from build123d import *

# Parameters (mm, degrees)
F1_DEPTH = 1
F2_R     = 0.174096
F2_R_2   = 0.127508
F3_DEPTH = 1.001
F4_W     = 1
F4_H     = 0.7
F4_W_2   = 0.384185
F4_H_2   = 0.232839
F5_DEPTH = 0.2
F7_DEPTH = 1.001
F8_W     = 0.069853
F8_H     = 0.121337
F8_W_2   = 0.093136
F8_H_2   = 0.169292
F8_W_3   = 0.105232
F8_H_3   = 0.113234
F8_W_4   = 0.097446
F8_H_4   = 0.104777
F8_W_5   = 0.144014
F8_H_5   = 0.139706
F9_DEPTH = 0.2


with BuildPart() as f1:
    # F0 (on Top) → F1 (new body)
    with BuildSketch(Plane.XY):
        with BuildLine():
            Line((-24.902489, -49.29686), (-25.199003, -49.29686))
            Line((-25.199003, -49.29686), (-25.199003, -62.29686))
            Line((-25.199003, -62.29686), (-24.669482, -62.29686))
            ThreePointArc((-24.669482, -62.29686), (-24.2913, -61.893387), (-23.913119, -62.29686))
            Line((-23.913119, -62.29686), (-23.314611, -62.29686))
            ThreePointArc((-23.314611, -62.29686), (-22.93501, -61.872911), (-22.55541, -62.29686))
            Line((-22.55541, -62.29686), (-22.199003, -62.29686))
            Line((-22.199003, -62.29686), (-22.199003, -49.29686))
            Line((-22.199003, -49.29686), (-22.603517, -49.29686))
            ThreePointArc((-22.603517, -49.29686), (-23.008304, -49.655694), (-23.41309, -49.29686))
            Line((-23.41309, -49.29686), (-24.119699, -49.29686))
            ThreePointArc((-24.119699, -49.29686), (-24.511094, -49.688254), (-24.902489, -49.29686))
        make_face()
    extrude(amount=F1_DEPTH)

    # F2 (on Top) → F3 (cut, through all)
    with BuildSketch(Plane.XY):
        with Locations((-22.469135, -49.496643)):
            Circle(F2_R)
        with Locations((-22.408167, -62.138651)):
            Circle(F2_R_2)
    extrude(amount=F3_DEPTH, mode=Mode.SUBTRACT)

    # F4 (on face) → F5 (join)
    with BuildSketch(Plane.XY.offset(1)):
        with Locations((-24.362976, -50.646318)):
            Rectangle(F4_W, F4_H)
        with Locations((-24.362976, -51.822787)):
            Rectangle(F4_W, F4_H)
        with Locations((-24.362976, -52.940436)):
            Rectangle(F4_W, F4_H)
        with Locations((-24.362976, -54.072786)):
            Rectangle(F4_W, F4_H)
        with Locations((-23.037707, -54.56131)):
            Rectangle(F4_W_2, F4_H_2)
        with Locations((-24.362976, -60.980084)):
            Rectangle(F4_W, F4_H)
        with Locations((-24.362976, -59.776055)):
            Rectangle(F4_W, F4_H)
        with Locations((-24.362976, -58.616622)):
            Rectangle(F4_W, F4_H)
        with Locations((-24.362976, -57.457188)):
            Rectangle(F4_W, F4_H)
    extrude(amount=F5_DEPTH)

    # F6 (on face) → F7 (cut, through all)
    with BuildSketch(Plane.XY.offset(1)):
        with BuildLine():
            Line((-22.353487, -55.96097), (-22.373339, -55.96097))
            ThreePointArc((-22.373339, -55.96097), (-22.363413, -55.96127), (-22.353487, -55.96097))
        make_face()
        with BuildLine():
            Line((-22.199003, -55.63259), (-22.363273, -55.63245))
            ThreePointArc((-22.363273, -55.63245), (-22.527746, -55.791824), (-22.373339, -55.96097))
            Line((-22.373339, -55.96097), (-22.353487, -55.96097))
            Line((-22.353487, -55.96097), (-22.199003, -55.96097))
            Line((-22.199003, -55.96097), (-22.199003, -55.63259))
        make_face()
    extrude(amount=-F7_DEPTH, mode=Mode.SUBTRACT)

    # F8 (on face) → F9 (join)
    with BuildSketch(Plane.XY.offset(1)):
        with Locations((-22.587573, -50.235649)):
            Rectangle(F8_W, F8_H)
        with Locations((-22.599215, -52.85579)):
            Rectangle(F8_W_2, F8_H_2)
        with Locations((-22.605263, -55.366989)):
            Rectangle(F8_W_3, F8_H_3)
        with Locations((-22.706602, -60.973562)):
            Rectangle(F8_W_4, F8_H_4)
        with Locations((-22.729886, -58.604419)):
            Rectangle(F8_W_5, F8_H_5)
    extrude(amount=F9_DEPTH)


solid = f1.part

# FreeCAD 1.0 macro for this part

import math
import FreeCAD as App
import Part
import Sketcher
from FreeCAD import Vector

doc = App.newDocument("Part")
params = doc.addObject("Spreadsheet::Sheet", "Params")
for row, (alias, value) in enumerate([
    ("sketch1_height", "13 mm"),
    ("pad1_length", "1 mm"),
    ("sketch3_width", "1 mm"),
    ("sketch3_height", "0.7 mm"),
    ("pad2_length", "0.2 mm"),
    ("pad3_length", "0.2 mm"),
], start=1):
    params.set(f"A{row}", alias)
    params.set(f"B{row}", "=" + value)
    params.setAlias(f"B{row}", alias)

body = doc.addObject("PartDesign::Body", "Body")

sketch1 = body.newObject("Sketcher::SketchObject", "Sketch")
sketch1.AttachmentSupport = (doc.getObject("XY_Plane"), [""])
sketch1.MapMode = "FlatFace"
sketch1.addGeometry([
    Part.LineSegment(Vector(-24.902489, -49.29686, 0), Vector(-25.199003, -49.29686, 0)),
    Part.LineSegment(Vector(-25.199003, -49.29686, 0), Vector(-25.199003, -62.29686, 0)),
    Part.LineSegment(Vector(-25.199003, -62.29686, 0), Vector(-24.669482, -62.29686, 0)),
    Part.ArcOfCircle(Part.Circle(Vector(-24.2913, -62.272361, 0), Vector(0, 0, 1), 0.378974), math.radians(-3.706474), math.radians(183.706474)),
    Part.LineSegment(Vector(-23.913119, -62.29686, 0), Vector(-23.314611, -62.29686, 0)),
    Part.ArcOfCircle(Part.Circle(Vector(-22.935011, -62.254831, 0), Vector(0, 0, 1), 0.38192), math.radians(-6.317984), math.radians(186.317984)),
    Part.LineSegment(Vector(-22.55541, -62.29686, 0), Vector(-22.199003, -62.29686, 0)),
    Part.LineSegment(Vector(-22.199003, -62.29686, 0), Vector(-22.199003, -49.29686, 0)),
    Part.LineSegment(Vector(-22.199003, -49.29686, 0), Vector(-22.603517, -49.29686, 0)),
    Part.ArcOfCircle(Part.Circle(Vector(-23.008304, -49.247965, 0), Vector(0, 0, 1), 0.407729), math.radians(-173.112513), math.radians(-6.887487)),
    Part.LineSegment(Vector(-23.41309, -49.29686, 0), Vector(-24.119699, -49.29686, 0)),
    Part.ArcOfCircle(Part.Circle(Vector(-24.511094, -49.296859, 0), Vector(0, 0, 1), 0.391395), math.radians(-179.999854), math.radians(-0.000146)),
], False)
sketch1.addConstraint([
    Sketcher.Constraint("Coincident", 0, 2, 1, 1),
    Sketcher.Constraint("Coincident", 1, 2, 2, 1),
    Sketcher.Constraint("Coincident", 2, 2, 3, 2),
    Sketcher.Constraint("Coincident", 3, 1, 4, 1),
    Sketcher.Constraint("Coincident", 4, 2, 5, 2),
    Sketcher.Constraint("Coincident", 5, 1, 6, 1),
    Sketcher.Constraint("Coincident", 6, 2, 7, 1),
    Sketcher.Constraint("Coincident", 7, 2, 8, 1),
    Sketcher.Constraint("Coincident", 8, 2, 9, 2),
    Sketcher.Constraint("Coincident", 9, 1, 10, 1),
    Sketcher.Constraint("Coincident", 10, 2, 11, 2),
    Sketcher.Constraint("Coincident", 11, 1, 0, 1),
    Sketcher.Constraint("Horizontal", 0),
    Sketcher.Constraint("Vertical", 1),
    Sketcher.Constraint("Horizontal", 2),
    Sketcher.Constraint("Horizontal", 4),
    Sketcher.Constraint("Horizontal", 6),
    Sketcher.Constraint("Vertical", 7),
    Sketcher.Constraint("Horizontal", 8),
    Sketcher.Constraint("Horizontal", 10),
    Sketcher.Constraint("Horizontal", 11, 3, 0, 2),
    Sketcher.Constraint("Horizontal", 2, 2, 3, 1),
    Sketcher.Constraint("Horizontal", 4, 2, 5, 1),
    Sketcher.Constraint("Horizontal", 0, 2, 7, 2),
    Sketcher.Constraint("Horizontal", 8, 2, 9, 1),
    Sketcher.Constraint("DistanceY", 1, 2, 1, 1, 13.0),
    Sketcher.Constraint("DistanceX", 0, 2, 7, 2, 3.0),
    Sketcher.Constraint("Radius", 5, 0.38192),
    Sketcher.Constraint("Radius", 9, 0.407729),
    Sketcher.Constraint("Radius", 3, 0.378974),
    Sketcher.Constraint("Radius", 11, 0.391395),
    Sketcher.Constraint("DistanceX", 2, 1, 2, 2, 0.529521),
    Sketcher.Constraint("DistanceX", 10, 2, 10, 1, 0.706609),
    Sketcher.Constraint("DistanceX", 3, 3, -1, 1, 24.2913),
    Sketcher.Constraint("DistanceX", 10, 2, -1, 1, 24.119699),
    Sketcher.Constraint("DistanceX", 0, 2, 9, 3, 2.1907),
    Sketcher.Constraint("DistanceY", 3, 3, 0, 2, 12.975501),
    Sketcher.Constraint("DistanceX", 4, 2, 5, 3, 0.3796),
    Sketcher.Constraint("DistanceX", 4, 1, 4, 2, 0.598508),
    Sketcher.Constraint("DistanceY", 3, 3, -1, 1, 62.272361),
])
sketch1.setExpression("Constraints[25]", "Params.sketch1_height")
pad1 = body.newObject("PartDesign::Pad", "Pad")
pad1.Profile = sketch1
pad1.setExpression("Length", "Params.pad1_length")

sketch2 = body.newObject("Sketcher::SketchObject", "Sketch001")
sketch2.AttachmentSupport = (doc.getObject("XY_Plane"), [""])
sketch2.MapMode = "FlatFace"
sketch2.addGeometry([
    Part.Circle(Vector(-22.469135, -49.496643, 0), Vector(0, 0, 1), 0.174096),
    Part.Circle(Vector(-22.408167, -62.138651, 0), Vector(0, 0, 1), 0.127508),
], False)
sketch2.addConstraint([
    Sketcher.Constraint("Diameter", 0, 0.348192),
    Sketcher.Constraint("Diameter", 1, 0.255016),
    Sketcher.Constraint("DistanceY", 1, 3, -1, 1, 62.138651),
    Sketcher.Constraint("DistanceX", 0, 3, 1, 3, 0.060968),
    Sketcher.Constraint("DistanceY", 1, 3, 0, 3, 12.642008),
    Sketcher.Constraint("DistanceX", 0, 3, -1, 1, 22.469135),
])
pocket1 = body.newObject("PartDesign::Pocket", "Pocket")
pocket1.Profile = sketch2
pocket1.Type = "ThroughAll"
pocket1.Reversed = True

sketch3 = body.newObject("Sketcher::SketchObject", "Sketch002")
sketch3.AttachmentSupport = (doc.getObject("XY_Plane"), [""])
sketch3.MapMode = "FlatFace"
sketch3.AttachmentOffset = App.Placement(Vector(0, 0, 1), App.Rotation())
sketch3.addGeometry([
    Part.LineSegment(Vector(-24.862976, -50.296318, 0), Vector(-24.862976, -50.996318, 0)),
    Part.LineSegment(Vector(-24.862976, -50.996318, 0), Vector(-23.862976, -50.996318, 0)),
    Part.LineSegment(Vector(-23.862976, -50.996318, 0), Vector(-23.862976, -50.296318, 0)),
    Part.LineSegment(Vector(-23.862976, -50.296318, 0), Vector(-24.862976, -50.296318, 0)),
    Part.LineSegment(Vector(-24.862976, -51.472787, 0), Vector(-24.862976, -52.172787, 0)),
    Part.LineSegment(Vector(-24.862976, -52.172787, 0), Vector(-23.862976, -52.172787, 0)),
    Part.LineSegment(Vector(-23.862976, -52.172787, 0), Vector(-23.862976, -51.472787, 0)),
    Part.LineSegment(Vector(-23.862976, -51.472787, 0), Vector(-24.862976, -51.472787, 0)),
    Part.LineSegment(Vector(-24.862976, -52.590436, 0), Vector(-24.862976, -53.290436, 0)),
    Part.LineSegment(Vector(-24.862976, -53.290436, 0), Vector(-23.862976, -53.290436, 0)),
    Part.LineSegment(Vector(-23.862976, -53.290436, 0), Vector(-23.862976, -52.590436, 0)),
    Part.LineSegment(Vector(-23.862976, -52.590436, 0), Vector(-24.862976, -52.590436, 0)),
    Part.LineSegment(Vector(-24.862976, -53.722786, 0), Vector(-24.862976, -54.422786, 0)),
    Part.LineSegment(Vector(-24.862976, -54.422786, 0), Vector(-23.862976, -54.422786, 0)),
    Part.LineSegment(Vector(-23.862976, -54.422786, 0), Vector(-23.862976, -53.722786, 0)),
    Part.LineSegment(Vector(-23.862976, -53.722786, 0), Vector(-24.862976, -53.722786, 0)),
    Part.LineSegment(Vector(-23.229799, -54.44489, 0), Vector(-23.229799, -54.677729, 0)),
    Part.LineSegment(Vector(-23.229799, -54.677729, 0), Vector(-22.845614, -54.677729, 0)),
    Part.LineSegment(Vector(-22.845614, -54.677729, 0), Vector(-22.845614, -54.44489, 0)),
    Part.LineSegment(Vector(-22.845614, -54.44489, 0), Vector(-23.229799, -54.44489, 0)),
    Part.LineSegment(Vector(-24.862976, -60.630084, 0), Vector(-24.862976, -61.330084, 0)),
    Part.LineSegment(Vector(-24.862976, -61.330084, 0), Vector(-23.862976, -61.330084, 0)),
    Part.LineSegment(Vector(-23.862976, -61.330084, 0), Vector(-23.862976, -60.630084, 0)),
    Part.LineSegment(Vector(-23.862976, -60.630084, 0), Vector(-24.862976, -60.630084, 0)),
    Part.LineSegment(Vector(-24.862976, -59.426055, 0), Vector(-24.862976, -60.126055, 0)),
    Part.LineSegment(Vector(-24.862976, -60.126055, 0), Vector(-23.862976, -60.126055, 0)),
    Part.LineSegment(Vector(-23.862976, -60.126055, 0), Vector(-23.862976, -59.426055, 0)),
    Part.LineSegment(Vector(-23.862976, -59.426055, 0), Vector(-24.862976, -59.426055, 0)),
    Part.LineSegment(Vector(-24.862976, -58.266622, 0), Vector(-24.862976, -58.966622, 0)),
    Part.LineSegment(Vector(-24.862976, -58.966622, 0), Vector(-23.862976, -58.966622, 0)),
    Part.LineSegment(Vector(-23.862976, -58.966622, 0), Vector(-23.862976, -58.266622, 0)),
    Part.LineSegment(Vector(-23.862976, -58.266622, 0), Vector(-24.862976, -58.266622, 0)),
    Part.LineSegment(Vector(-24.862976, -57.107188, 0), Vector(-24.862976, -57.807188, 0)),
    Part.LineSegment(Vector(-24.862976, -57.807188, 0), Vector(-23.862976, -57.807188, 0)),
    Part.LineSegment(Vector(-23.862976, -57.807188, 0), Vector(-23.862976, -57.107188, 0)),
    Part.LineSegment(Vector(-23.862976, -57.107188, 0), Vector(-24.862976, -57.107188, 0)),
], False)
sketch3.addConstraint([
    Sketcher.Constraint("Coincident", 0, 2, 1, 1),
    Sketcher.Constraint("Coincident", 1, 2, 2, 1),
    Sketcher.Constraint("Coincident", 2, 2, 3, 1),
    Sketcher.Constraint("Coincident", 3, 2, 0, 1),
    Sketcher.Constraint("Coincident", 4, 2, 5, 1),
    Sketcher.Constraint("Coincident", 5, 2, 6, 1),
    Sketcher.Constraint("Coincident", 6, 2, 7, 1),
    Sketcher.Constraint("Coincident", 7, 2, 4, 1),
    Sketcher.Constraint("Coincident", 8, 2, 9, 1),
    Sketcher.Constraint("Coincident", 9, 2, 10, 1),
    Sketcher.Constraint("Coincident", 10, 2, 11, 1),
    Sketcher.Constraint("Coincident", 11, 2, 8, 1),
    Sketcher.Constraint("Coincident", 12, 2, 13, 1),
    Sketcher.Constraint("Coincident", 13, 2, 14, 1),
    Sketcher.Constraint("Coincident", 14, 2, 15, 1),
    Sketcher.Constraint("Coincident", 15, 2, 12, 1),
    Sketcher.Constraint("Coincident", 16, 2, 17, 1),
    Sketcher.Constraint("Coincident", 17, 2, 18, 1),
    Sketcher.Constraint("Coincident", 18, 2, 19, 1),
    Sketcher.Constraint("Coincident", 19, 2, 16, 1),
    Sketcher.Constraint("Coincident", 20, 2, 21, 1),
    Sketcher.Constraint("Coincident", 21, 2, 22, 1),
    Sketcher.Constraint("Coincident", 22, 2, 23, 1),
    Sketcher.Constraint("Coincident", 23, 2, 20, 1),
    Sketcher.Constraint("Coincident", 24, 2, 25, 1),
    Sketcher.Constraint("Coincident", 25, 2, 26, 1),
    Sketcher.Constraint("Coincident", 26, 2, 27, 1),
    Sketcher.Constraint("Coincident", 27, 2, 24, 1),
    Sketcher.Constraint("Coincident", 28, 2, 29, 1),
    Sketcher.Constraint("Coincident", 29, 2, 30, 1),
    Sketcher.Constraint("Coincident", 30, 2, 31, 1),
    Sketcher.Constraint("Coincident", 31, 2, 28, 1),
    Sketcher.Constraint("Coincident", 32, 2, 33, 1),
    Sketcher.Constraint("Coincident", 33, 2, 34, 1),
    Sketcher.Constraint("Coincident", 34, 2, 35, 1),
    Sketcher.Constraint("Coincident", 35, 2, 32, 1),
    Sketcher.Constraint("Vertical", 0),
    Sketcher.Constraint("Horizontal", 1),
    Sketcher.Constraint("Vertical", 2),
    Sketcher.Constraint("Horizontal", 3),
    Sketcher.Constraint("Vertical", 4),
    Sketcher.Constraint("Horizontal", 5),
    Sketcher.Constraint("Vertical", 6),
    Sketcher.Constraint("Horizontal", 7),
    Sketcher.Constraint("Vertical", 8),
    Sketcher.Constraint("Horizontal", 9),
    Sketcher.Constraint("Vertical", 10),
    Sketcher.Constraint("Horizontal", 11),
    Sketcher.Constraint("Vertical", 12),
    Sketcher.Constraint("Horizontal", 13),
    Sketcher.Constraint("Vertical", 14),
    Sketcher.Constraint("Horizontal", 15),
    Sketcher.Constraint("Vertical", 16),
    Sketcher.Constraint("Horizontal", 17),
    Sketcher.Constraint("Vertical", 18),
    Sketcher.Constraint("Horizontal", 19),
    Sketcher.Constraint("Vertical", 20),
    Sketcher.Constraint("Horizontal", 21),
    Sketcher.Constraint("Vertical", 22),
    Sketcher.Constraint("Horizontal", 23),
    Sketcher.Constraint("Vertical", 24),
    Sketcher.Constraint("Horizontal", 25),
    Sketcher.Constraint("Vertical", 26),
    Sketcher.Constraint("Horizontal", 27),
    Sketcher.Constraint("Vertical", 28),
    Sketcher.Constraint("Horizontal", 29),
    Sketcher.Constraint("Vertical", 30),
    Sketcher.Constraint("Horizontal", 31),
    Sketcher.Constraint("Vertical", 32),
    Sketcher.Constraint("Horizontal", 33),
    Sketcher.Constraint("Vertical", 34),
    Sketcher.Constraint("Horizontal", 35),
    Sketcher.Constraint("Vertical", 3, 2, 4, 2),
    Sketcher.Constraint("Vertical", 2, 2, 5, 2),
    Sketcher.Constraint("Vertical", 7, 2, 8, 2),
    Sketcher.Constraint("Vertical", 6, 2, 9, 2),
    Sketcher.Constraint("Vertical", 11, 2, 12, 2),
    Sketcher.Constraint("Vertical", 10, 2, 13, 2),
    Sketcher.Constraint("Vertical", 15, 2, 20, 2),
    Sketcher.Constraint("Vertical", 14, 2, 21, 2),
    Sketcher.Constraint("Vertical", 23, 2, 24, 2),
    Sketcher.Constraint("Vertical", 22, 2, 25, 2),
    Sketcher.Constraint("Vertical", 27, 2, 28, 2),
    Sketcher.Constraint("Vertical", 26, 2, 29, 2),
    Sketcher.Constraint("Vertical", 31, 2, 32, 2),
    Sketcher.Constraint("Vertical", 30, 2, 33, 2),
    Sketcher.Constraint("Equal", 2, 4),
    Sketcher.Constraint("Equal", 6, 8),
    Sketcher.Constraint("Equal", 10, 12),
    Sketcher.Constraint("Equal", 14, 20),
    Sketcher.Constraint("Equal", 22, 24),
    Sketcher.Constraint("Equal", 26, 28),
    Sketcher.Constraint("Equal", 30, 32),
    Sketcher.Constraint("DistanceX", 1, 1, 1, 2, 1.0),
    Sketcher.Constraint("DistanceY", 0, 2, 0, 1, 0.7),
    Sketcher.Constraint("DistanceY", 12, 2, 4, 2, 2.249999),
    Sketcher.Constraint("DistanceY", 16, 2, 16, 1, 0.232839),
    Sketcher.Constraint("DistanceX", 16, 2, -1, 1, 23.229799),
    Sketcher.Constraint("DistanceX", 17, 1, 17, 2, 0.384185),
    Sketcher.Constraint("DistanceY", 0, 2, -1, 1, 50.996318),
    Sketcher.Constraint("DistanceY", 16, 2, -1, 1, 54.677729),
    Sketcher.Constraint("DistanceY", 30, 2, -1, 1, 58.266622),
    Sketcher.Constraint("DistanceY", 4, 2, 0, 2, 1.176469),
    Sketcher.Constraint("DistanceY", 8, 2, 4, 2, 1.117649),
    Sketcher.Constraint("DistanceX", 13, 2, 17, 2, 1.017361),
    Sketcher.Constraint("DistanceY", 23, 2, 24, 2, 0.504029),
    Sketcher.Constraint("DistanceY", 23, 2, 28, 2, 1.663462),
    Sketcher.Constraint("DistanceY", 32, 2, -1, 1, 57.807188),
])
sketch3.setExpression("Constraints[93]", "Params.sketch3_width")
sketch3.setExpression("Constraints[94]", "Params.sketch3_height")
pad2 = body.newObject("PartDesign::Pad", "Pad001")
pad2.Profile = sketch3
pad2.setExpression("Length", "Params.pad2_length")

sketch4 = body.newObject("Sketcher::SketchObject", "Sketch003")
sketch4.AttachmentSupport = (doc.getObject("XY_Plane"), [""])
sketch4.MapMode = "FlatFace"
sketch4.AttachmentOffset = App.Placement(Vector(0, 0, 1), App.Rotation())
sketch4.addGeometry([
    Part.ArcOfCircle(Part.Circle(Vector(-22.363413, -55.796911, 0), Vector(0, 0, 1), 0.164359), math.radians(-93.462322), math.radians(-86.537678)),
    Part.LineSegment(Vector(-22.353487, -55.96097, 0), Vector(-22.199003, -55.96097, 0)),
    Part.LineSegment(Vector(-22.199003, -55.96097, 0), Vector(-22.199003, -55.63259, 0)),
    Part.LineSegment(Vector(-22.199003, -55.63259, 0), Vector(-22.363273, -55.63245, 0)),
    Part.ArcOfCircle(Part.Circle(Vector(-22.363413, -55.79686, 0), Vector(0, 0, 1), 0.16441), math.radians(89.951153), math.radians(266.538808)),
], False)
sketch4.addConstraint([
    Sketcher.Constraint("Coincident", 0, 2, 1, 1),
    Sketcher.Constraint("Coincident", 1, 2, 2, 1),
    Sketcher.Constraint("Coincident", 2, 2, 3, 1),
    Sketcher.Constraint("Tangent", 3, 2, 4, 1),
    Sketcher.Constraint("Coincident", 4, 2, 0, 1),
    Sketcher.Constraint("Horizontal", 1),
    Sketcher.Constraint("Vertical", 2),
    Sketcher.Constraint("Horizontal", 1, 2, 4, 2),
    Sketcher.Constraint("Vertical", 0, 3, 4, 3),
    Sketcher.Constraint("Radius", 0, 0.164359),
    Sketcher.Constraint("Radius", 4, 0.16441),
    Sketcher.Constraint("DistanceY", 2, 1, 2, 2, 0.32838),
    Sketcher.Constraint("Distance", 3, 0.16427),
    Sketcher.Constraint("DistanceX", 1, 1, 1, 2, 0.154484),
    Sketcher.Constraint("DistanceY", 0, 3, -1, 1, 55.796911),
    Sketcher.Constraint("DistanceX", 4, 2, -1, 1, 22.373339),
])
pocket2 = body.newObject("PartDesign::Pocket", "Pocket001")
pocket2.Profile = sketch4
pocket2.Type = "ThroughAll"

sketch5 = body.newObject("Sketcher::SketchObject", "Sketch004")
sketch5.AttachmentSupport = (doc.getObject("XY_Plane"), [""])
sketch5.MapMode = "FlatFace"
sketch5.AttachmentOffset = App.Placement(Vector(0, 0, 1), App.Rotation())
sketch5.addGeometry([
    Part.LineSegment(Vector(-22.622499, -50.17498, 0), Vector(-22.622499, -50.296318, 0)),
    Part.LineSegment(Vector(-22.622499, -50.296318, 0), Vector(-22.552647, -50.296318, 0)),
    Part.LineSegment(Vector(-22.552647, -50.296318, 0), Vector(-22.552647, -50.17498, 0)),
    Part.LineSegment(Vector(-22.552647, -50.17498, 0), Vector(-22.622499, -50.17498, 0)),
    Part.LineSegment(Vector(-22.645783, -52.771144, 0), Vector(-22.645783, -52.940436, 0)),
    Part.LineSegment(Vector(-22.645783, -52.940436, 0), Vector(-22.552647, -52.940436, 0)),
    Part.LineSegment(Vector(-22.552647, -52.940436, 0), Vector(-22.552647, -52.771144, 0)),
    Part.LineSegment(Vector(-22.552647, -52.771144, 0), Vector(-22.645783, -52.771144, 0)),
    Part.LineSegment(Vector(-22.657879, -55.310372, 0), Vector(-22.657879, -55.423606, 0)),
    Part.LineSegment(Vector(-22.657879, -55.423606, 0), Vector(-22.552647, -55.423606, 0)),
    Part.LineSegment(Vector(-22.552647, -55.423606, 0), Vector(-22.552647, -55.310372, 0)),
    Part.LineSegment(Vector(-22.552647, -55.310372, 0), Vector(-22.657879, -55.310372, 0)),
    Part.LineSegment(Vector(-22.755325, -60.921174, 0), Vector(-22.755325, -61.025951, 0)),
    Part.LineSegment(Vector(-22.755325, -61.025951, 0), Vector(-22.657879, -61.025951, 0)),
    Part.LineSegment(Vector(-22.657879, -61.025951, 0), Vector(-22.657879, -60.921174, 0)),
    Part.LineSegment(Vector(-22.657879, -60.921174, 0), Vector(-22.755325, -60.921174, 0)),
    Part.LineSegment(Vector(-22.801893, -58.534566, 0), Vector(-22.801893, -58.674272, 0)),
    Part.LineSegment(Vector(-22.801893, -58.674272, 0), Vector(-22.657879, -58.674272, 0)),
    Part.LineSegment(Vector(-22.657879, -58.674272, 0), Vector(-22.657879, -58.534566, 0)),
    Part.LineSegment(Vector(-22.657879, -58.534566, 0), Vector(-22.801893, -58.534566, 0)),
], False)
sketch5.addConstraint([
    Sketcher.Constraint("Coincident", 0, 2, 1, 1),
    Sketcher.Constraint("Coincident", 1, 2, 2, 1),
    Sketcher.Constraint("Coincident", 2, 2, 3, 1),
    Sketcher.Constraint("Coincident", 3, 2, 0, 1),
    Sketcher.Constraint("Coincident", 4, 2, 5, 1),
    Sketcher.Constraint("Coincident", 5, 2, 6, 1),
    Sketcher.Constraint("Coincident", 6, 2, 7, 1),
    Sketcher.Constraint("Coincident", 7, 2, 4, 1),
    Sketcher.Constraint("Coincident", 8, 2, 9, 1),
    Sketcher.Constraint("Coincident", 9, 2, 10, 1),
    Sketcher.Constraint("Coincident", 10, 2, 11, 1),
    Sketcher.Constraint("Coincident", 11, 2, 8, 1),
    Sketcher.Constraint("Coincident", 12, 2, 13, 1),
    Sketcher.Constraint("Coincident", 13, 2, 14, 1),
    Sketcher.Constraint("Coincident", 14, 2, 15, 1),
    Sketcher.Constraint("Coincident", 15, 2, 12, 1),
    Sketcher.Constraint("Coincident", 16, 2, 17, 1),
    Sketcher.Constraint("Coincident", 17, 2, 18, 1),
    Sketcher.Constraint("Coincident", 18, 2, 19, 1),
    Sketcher.Constraint("Coincident", 19, 2, 16, 1),
    Sketcher.Constraint("Vertical", 0),
    Sketcher.Constraint("Horizontal", 1),
    Sketcher.Constraint("Vertical", 2),
    Sketcher.Constraint("Horizontal", 3),
    Sketcher.Constraint("Vertical", 4),
    Sketcher.Constraint("Horizontal", 5),
    Sketcher.Constraint("Vertical", 6),
    Sketcher.Constraint("Horizontal", 7),
    Sketcher.Constraint("Vertical", 8),
    Sketcher.Constraint("Horizontal", 9),
    Sketcher.Constraint("Vertical", 10),
    Sketcher.Constraint("Horizontal", 11),
    Sketcher.Constraint("Vertical", 12),
    Sketcher.Constraint("Horizontal", 13),
    Sketcher.Constraint("Vertical", 14),
    Sketcher.Constraint("Horizontal", 15),
    Sketcher.Constraint("Vertical", 16),
    Sketcher.Constraint("Horizontal", 17),
    Sketcher.Constraint("Vertical", 18),
    Sketcher.Constraint("Horizontal", 19),
    Sketcher.Constraint("Vertical", 2, 2, 5, 2),
    Sketcher.Constraint("Vertical", 6, 2, 9, 2),
    Sketcher.Constraint("Vertical", 11, 2, 13, 2),
    Sketcher.Constraint("Vertical", 14, 2, 17, 2),
    Sketcher.Constraint("DistanceY", 4, 2, 4, 1, 0.169292),
    Sketcher.Constraint("DistanceX", 0, 2, -1, 1, 22.622499),
    Sketcher.Constraint("DistanceY", 14, 2, 11, 2, 5.610802),
    Sketcher.Constraint("DistanceY", 15, 2, 16, 2, 2.246901),
    Sketcher.Constraint("DistanceX", 1, 1, 1, 2, 0.069853),
    Sketcher.Constraint("DistanceX", 5, 1, 5, 2, 0.093136),
    Sketcher.Constraint("DistanceX", 9, 1, 9, 2, 0.105232),
    Sketcher.Constraint("DistanceX", 13, 1, 13, 2, 0.097446),
    Sketcher.Constraint("DistanceX", 17, 1, 17, 2, 0.144014),
    Sketcher.Constraint("DistanceY", 0, 2, 0, 1, 0.121337),
    Sketcher.Constraint("DistanceY", 8, 2, 8, 1, 0.113234),
    Sketcher.Constraint("DistanceY", 12, 2, 12, 1, 0.104777),
    Sketcher.Constraint("DistanceY", 16, 2, 16, 1, 0.139706),
    Sketcher.Constraint("DistanceY", 2, 2, -1, 1, 50.17498),
    Sketcher.Constraint("DistanceY", 12, 2, -1, 1, 61.025951),
    Sketcher.Constraint("DistanceY", 4, 2, 0, 2, 2.644118),
])
pad3 = body.newObject("PartDesign::Pad", "Pad002")
pad3.Profile = sketch5
pad3.setExpression("Length", "Params.pad3_length")

doc.recompute()
